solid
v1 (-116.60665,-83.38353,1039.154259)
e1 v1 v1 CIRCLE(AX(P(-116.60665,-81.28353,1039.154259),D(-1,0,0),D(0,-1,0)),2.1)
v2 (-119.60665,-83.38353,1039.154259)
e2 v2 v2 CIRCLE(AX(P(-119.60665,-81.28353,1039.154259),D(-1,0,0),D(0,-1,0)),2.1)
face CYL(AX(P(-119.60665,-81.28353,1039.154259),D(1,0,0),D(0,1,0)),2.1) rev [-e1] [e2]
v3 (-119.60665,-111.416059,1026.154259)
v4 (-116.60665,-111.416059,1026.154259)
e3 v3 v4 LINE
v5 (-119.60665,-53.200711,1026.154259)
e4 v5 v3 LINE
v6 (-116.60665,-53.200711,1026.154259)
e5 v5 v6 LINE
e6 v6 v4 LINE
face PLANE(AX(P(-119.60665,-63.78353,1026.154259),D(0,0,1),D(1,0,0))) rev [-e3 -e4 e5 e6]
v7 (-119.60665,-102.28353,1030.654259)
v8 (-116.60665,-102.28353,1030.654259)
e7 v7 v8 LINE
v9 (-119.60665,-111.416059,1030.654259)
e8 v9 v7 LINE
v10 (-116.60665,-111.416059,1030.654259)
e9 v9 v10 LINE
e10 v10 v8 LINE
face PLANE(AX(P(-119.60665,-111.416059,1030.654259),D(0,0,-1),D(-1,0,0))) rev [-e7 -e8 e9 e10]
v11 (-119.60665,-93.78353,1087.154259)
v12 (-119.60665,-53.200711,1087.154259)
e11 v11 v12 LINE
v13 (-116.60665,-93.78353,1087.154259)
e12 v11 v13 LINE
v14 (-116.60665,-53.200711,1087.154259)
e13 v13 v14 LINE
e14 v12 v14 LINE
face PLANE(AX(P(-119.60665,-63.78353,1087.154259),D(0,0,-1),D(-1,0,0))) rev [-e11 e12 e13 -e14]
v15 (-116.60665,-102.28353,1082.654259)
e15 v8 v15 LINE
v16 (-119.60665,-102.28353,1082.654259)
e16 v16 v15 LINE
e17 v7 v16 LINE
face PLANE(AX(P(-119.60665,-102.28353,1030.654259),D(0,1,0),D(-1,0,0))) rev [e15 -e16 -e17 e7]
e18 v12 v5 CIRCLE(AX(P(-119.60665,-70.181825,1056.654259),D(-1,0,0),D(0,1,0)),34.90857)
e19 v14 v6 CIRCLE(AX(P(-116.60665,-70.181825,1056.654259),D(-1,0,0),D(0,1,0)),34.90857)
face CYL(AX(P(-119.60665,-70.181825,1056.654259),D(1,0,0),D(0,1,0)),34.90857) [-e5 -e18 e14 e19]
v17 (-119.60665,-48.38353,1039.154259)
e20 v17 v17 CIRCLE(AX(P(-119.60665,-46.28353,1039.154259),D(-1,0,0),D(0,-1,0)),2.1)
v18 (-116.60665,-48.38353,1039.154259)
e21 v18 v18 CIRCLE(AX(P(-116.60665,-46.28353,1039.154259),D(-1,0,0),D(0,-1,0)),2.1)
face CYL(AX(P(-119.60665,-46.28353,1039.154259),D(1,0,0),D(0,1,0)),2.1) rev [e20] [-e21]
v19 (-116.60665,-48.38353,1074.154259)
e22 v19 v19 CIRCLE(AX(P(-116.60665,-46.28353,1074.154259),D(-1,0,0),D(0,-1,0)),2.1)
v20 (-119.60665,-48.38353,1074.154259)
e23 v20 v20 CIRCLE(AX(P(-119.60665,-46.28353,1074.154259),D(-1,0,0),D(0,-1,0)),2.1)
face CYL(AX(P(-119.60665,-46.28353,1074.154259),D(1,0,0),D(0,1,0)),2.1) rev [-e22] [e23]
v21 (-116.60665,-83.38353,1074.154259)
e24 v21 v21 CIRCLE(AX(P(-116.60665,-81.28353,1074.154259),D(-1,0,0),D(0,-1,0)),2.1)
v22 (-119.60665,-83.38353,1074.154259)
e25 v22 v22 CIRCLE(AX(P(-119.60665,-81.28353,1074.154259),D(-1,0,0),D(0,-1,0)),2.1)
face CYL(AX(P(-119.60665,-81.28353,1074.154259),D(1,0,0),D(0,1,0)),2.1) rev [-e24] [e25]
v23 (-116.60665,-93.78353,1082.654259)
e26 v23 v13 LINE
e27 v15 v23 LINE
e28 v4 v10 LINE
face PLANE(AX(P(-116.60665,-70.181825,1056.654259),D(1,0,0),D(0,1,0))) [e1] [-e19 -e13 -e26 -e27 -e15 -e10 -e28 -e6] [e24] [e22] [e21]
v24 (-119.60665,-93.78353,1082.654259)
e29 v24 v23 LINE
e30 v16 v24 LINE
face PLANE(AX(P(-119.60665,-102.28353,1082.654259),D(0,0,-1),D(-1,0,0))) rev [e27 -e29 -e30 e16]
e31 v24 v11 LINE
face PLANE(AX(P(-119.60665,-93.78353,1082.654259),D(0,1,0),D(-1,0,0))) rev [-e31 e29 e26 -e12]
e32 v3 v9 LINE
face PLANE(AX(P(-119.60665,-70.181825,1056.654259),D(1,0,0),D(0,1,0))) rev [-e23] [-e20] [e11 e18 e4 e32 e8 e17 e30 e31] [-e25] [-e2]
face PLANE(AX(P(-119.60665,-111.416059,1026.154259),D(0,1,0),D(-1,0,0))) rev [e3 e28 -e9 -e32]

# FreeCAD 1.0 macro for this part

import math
import FreeCAD as App
import Part
import Sketcher

doc = App.newDocument("Part")
body = doc.addObject("PartDesign::Body", "Body")

sketch1 = body.newObject("Sketcher::SketchObject", "Sketch")
sketch1.AttachmentSupport = (doc.getObject("YZ_Plane"), [""])
sketch1.MapMode = "FlatFace"
sketch1.AttachmentOffset = App.Placement(App.Vector(0, 0, -116.60665), App.Rotation())
sketch1.addGeometry(Part.LineSegment(App.Vector(-102.3, 1030.7, 0), App.Vector(-102.3, 1082.7, 0)), False)
sketch1.addGeometry(Part.LineSegment(App.Vector(-102.3, 1082.7, 0), App.Vector(-93.8, 1082.7, 0)), False)
sketch1.addGeometry(Part.LineSegment(App.Vector(-93.8, 1082.7, 0), App.Vector(-93.8, 1087.2, 0)), False)
sketch1.addGeometry(Part.LineSegment(App.Vector(-93.8, 1087.2, 0), App.Vector(-53.2, 1087.2, 0)), False)
sketch1.addGeometry(Part.ArcOfCircle(Part.Circle(App.Vector(-70.2, 1056.7, 0), App.Vector(0, 0, 1), 34.9), math.radians(-61), math.radians(61)), False)
sketch1.addGeometry(Part.LineSegment(App.Vector(-53.2, 1026.2, 0), App.Vector(-111.4, 1026.2, 0)), False)
sketch1.addGeometry(Part.LineSegment(App.Vector(-111.4, 1026.2, 0), App.Vector(-111.4, 1030.7, 0)), False)
sketch1.addGeometry(Part.LineSegment(App.Vector(-111.4, 1030.7, 0), App.Vector(-102.3, 1030.7, 0)), False)
sketch1.addGeometry(Part.Circle(App.Vector(-81.3, 1039.2, 0), App.Vector(0, 0, 1), 2.1), False)
sketch1.addGeometry(Part.Circle(App.Vector(-81.3, 1074.2, 0), App.Vector(0, 0, 1), 2.1), False)
sketch1.addGeometry(Part.Circle(App.Vector(-46.3, 1039.2, 0), App.Vector(0, 0, 1), 2.1), False)
sketch1.addGeometry(Part.Circle(App.Vector(-46.3, 1074.2, 0), App.Vector(0, 0, 1), 2.1), False)
sketch1.addConstraint(Sketcher.Constraint("Coincident", 0, 2, 1, 1))
sketch1.addConstraint(Sketcher.Constraint("Coincident", 1, 2, 2, 1))
sketch1.addConstraint(Sketcher.Constraint("Coincident", 2, 2, 3, 1))
sketch1.addConstraint(Sketcher.Constraint("Coincident", 3, 2, 4, 2))
sketch1.addConstraint(Sketcher.Constraint("Coincident", 4, 1, 5, 1))
sketch1.addConstraint(Sketcher.Constraint("Coincident", 5, 2, 6, 1))
sketch1.addConstraint(Sketcher.Constraint("Coincident", 6, 2, 7, 1))
sketch1.addConstraint(Sketcher.Constraint("Coincident", 7, 2, 0, 1))
sketch1.addConstraint(Sketcher.Constraint("Vertical", 0))
sketch1.addConstraint(Sketcher.Constraint("Horizontal", 1))
sketch1.addConstraint(Sketcher.Constraint("Vertical", 2))
sketch1.addConstraint(Sketcher.Constraint("Horizontal", 3))
sketch1.addConstraint(Sketcher.Constraint("Horizontal", 5))
sketch1.addConstraint(Sketcher.Constraint("Vertical", 6))
sketch1.addConstraint(Sketcher.Constraint("Horizontal", 7))
sketch1.addConstraint(Sketcher.Constraint("Equal", 8, 9))
sketch1.addConstraint(Sketcher.Constraint("Equal", 9, 10))
sketch1.addConstraint(Sketcher.Constraint("Equal", 10, 11))
sketch1.addConstraint(Sketcher.Constraint("Horizontal", 8, 3, 10, 3))
sketch1.addConstraint(Sketcher.Constraint("Horizontal", 9, 3, 11, 3))
sketch1.addConstraint(Sketcher.Constraint("Vertical", 8, 3, 9, 3))
sketch1.addConstraint(Sketcher.Constraint("Vertical", 10, 3, 11, 3))
sketch1.addConstraint(Sketcher.Constraint("Vertical", 3, 2, 4, 1))
sketch1.addConstraint(Sketcher.Constraint("Equal", 2, 6))
sketch1.addConstraint(Sketcher.Constraint("Diameter", 8, 4.2))
sketch1.addConstraint(Sketcher.Constraint("DistanceY", 0, 1, 0, 2, 52.0))
sketch1.addConstraint(Sketcher.Constraint("DistanceX", 1, 1, 1, 2, 8.5))
sketch1.addConstraint(Sketcher.Constraint("DistanceY", 2, 1, 2, 2, 4.5))
sketch1.addConstraint(Sketcher.Constraint("DistanceY", 8, 3, 9, 3, 35.0))
sketch1.addConstraint(Sketcher.Constraint("DistanceX", 8, 3, 10, 3, 35.0))
sketch1.addConstraint(Sketcher.Constraint("DistanceX", 0, 2, 9, 3, 21.0))
sketch1.addConstraint(Sketcher.Constraint("DistanceY", 9, 3, 2, 2, 13.0))
sketch1.addConstraint(Sketcher.Constraint("Radius", 4, 34.90857))
sketch1.addConstraint(Sketcher.Constraint("DistanceX", 3, 1, 3, 2, 40.582819))
sketch1.addConstraint(Sketcher.Constraint("DistanceX", 5, 2, 5, 1, 58.215348))
sketch1.addConstraint(Sketcher.Constraint("DistanceY", -1, 1, 4, 3, 1056.654259))
sketch1.addConstraint(Sketcher.Constraint("DistanceX", 8, 3, -1, 1, 81.28353))
pad1 = body.newObject("PartDesign::Pad", "Pad")
pad1.Profile = sketch1
pad1.Length = 3
pad1.Reversed = True

doc.recompute()
